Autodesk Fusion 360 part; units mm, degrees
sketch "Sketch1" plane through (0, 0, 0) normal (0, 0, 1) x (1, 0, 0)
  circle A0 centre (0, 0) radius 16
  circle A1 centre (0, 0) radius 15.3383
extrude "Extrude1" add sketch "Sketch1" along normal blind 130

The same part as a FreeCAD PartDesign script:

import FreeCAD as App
import Part
import Sketcher
Q = App.Units.Quantity

doc = App.newDocument("Part")
body = doc.addObject("PartDesign::Body", "Body")

# Sketch on XY plane
sketch1 = doc.addObject("Sketcher::SketchObject", "Sketch")
body.addObject(sketch1)
sketch1.AttachmentSupport = (doc.XY_Plane, [""])
sketch1.MapMode = "FlatFace"
sketch1.addGeometry(Part.Circle(App.Vector(0, 0, 0), App.Vector(0, 0, 1), 16), False)
sketch1.addGeometry(Part.Circle(App.Vector(0, 0, 0), App.Vector(0, 0, 1), 15), False)
sketch1.addConstraint(Sketcher.Constraint("Coincident", 0, 3, -1, 1))
sketch1.addConstraint(Sketcher.Constraint("Coincident", 1, 3, -1, 1))
sketch1.addConstraint(Sketcher.Constraint("Diameter", 0, Q("32 mm")))
sketch1.addConstraint(Sketcher.Constraint("Diameter", 1, Q("30.6766 mm")))
pad1 = doc.addObject("PartDesign::Pad", "Pad")
body.addObject(pad1)
pad1.Profile = sketch1
pad1.Length = 130

doc.recompute()
